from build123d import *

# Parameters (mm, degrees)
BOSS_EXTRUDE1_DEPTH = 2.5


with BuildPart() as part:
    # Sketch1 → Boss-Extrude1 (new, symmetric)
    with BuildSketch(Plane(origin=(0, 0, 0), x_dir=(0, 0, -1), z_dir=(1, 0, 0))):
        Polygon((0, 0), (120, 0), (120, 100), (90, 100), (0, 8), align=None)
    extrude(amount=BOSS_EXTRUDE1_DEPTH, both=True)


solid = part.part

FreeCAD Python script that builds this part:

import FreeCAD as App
import Part
import Sketcher
Q = App.Units.Quantity


def add_polygon(sketch, points):
    """Adds a closed chain of lines whose ends are joined by coincident constraints."""
    first, n = sketch.GeometryCount, len(points)
    for a, b in zip(points, points[1:] + points[:1]):
        sketch.addGeometry(Part.LineSegment(App.Vector(*a, 0), App.Vector(*b, 0)), False)
    for i in range(n):
        sketch.addConstraint(Sketcher.Constraint("Coincident", first + i, 2, first + (i + 1) % n, 1))

doc = App.newDocument("Part")
body = doc.addObject("PartDesign::Body", "Body")

sketch1 = doc.addObject("Sketcher::SketchObject", "Sketch")
body.addObject(sketch1)
sketch1.AttachmentSupport = (doc.YZ_Plane, [""])
sketch1.MapMode = "FlatFace"
add_polygon(sketch1, [(0, 0), (0, -120), (100, -120), (100, -90), (8, 0)])
sketch1.addConstraint(Sketcher.Constraint("Vertical", 0))
sketch1.addConstraint(Sketcher.Constraint("Horizontal", 1))
sketch1.addConstraint(Sketcher.Constraint("Vertical", 2))
sketch1.addConstraint(Sketcher.Constraint("Horizontal", 4))
sketch1.addConstraint(Sketcher.Constraint("Coincident", 4, 2, -1, 1))
sketch1.addConstraint(Sketcher.Constraint("DistanceX", 1, 1, 1, 2, Q("100 mm")))
sketch1.addConstraint(Sketcher.Constraint("DistanceX", 4, 2, 4, 1, Q("8 mm")))
sketch1.addConstraint(Sketcher.Constraint("DistanceY", 0, 2, 0, 1, Q("120 mm")))
sketch1.addConstraint(Sketcher.Constraint("DistanceY", 2, 1, 2, 2, Q("30 mm")))
pad1 = doc.addObject("PartDesign::Pad", "Pad")
body.addObject(pad1)
pad1.Profile = sketch1
pad1.Length = 5
pad1.Midplane = True

doc.recompute()
